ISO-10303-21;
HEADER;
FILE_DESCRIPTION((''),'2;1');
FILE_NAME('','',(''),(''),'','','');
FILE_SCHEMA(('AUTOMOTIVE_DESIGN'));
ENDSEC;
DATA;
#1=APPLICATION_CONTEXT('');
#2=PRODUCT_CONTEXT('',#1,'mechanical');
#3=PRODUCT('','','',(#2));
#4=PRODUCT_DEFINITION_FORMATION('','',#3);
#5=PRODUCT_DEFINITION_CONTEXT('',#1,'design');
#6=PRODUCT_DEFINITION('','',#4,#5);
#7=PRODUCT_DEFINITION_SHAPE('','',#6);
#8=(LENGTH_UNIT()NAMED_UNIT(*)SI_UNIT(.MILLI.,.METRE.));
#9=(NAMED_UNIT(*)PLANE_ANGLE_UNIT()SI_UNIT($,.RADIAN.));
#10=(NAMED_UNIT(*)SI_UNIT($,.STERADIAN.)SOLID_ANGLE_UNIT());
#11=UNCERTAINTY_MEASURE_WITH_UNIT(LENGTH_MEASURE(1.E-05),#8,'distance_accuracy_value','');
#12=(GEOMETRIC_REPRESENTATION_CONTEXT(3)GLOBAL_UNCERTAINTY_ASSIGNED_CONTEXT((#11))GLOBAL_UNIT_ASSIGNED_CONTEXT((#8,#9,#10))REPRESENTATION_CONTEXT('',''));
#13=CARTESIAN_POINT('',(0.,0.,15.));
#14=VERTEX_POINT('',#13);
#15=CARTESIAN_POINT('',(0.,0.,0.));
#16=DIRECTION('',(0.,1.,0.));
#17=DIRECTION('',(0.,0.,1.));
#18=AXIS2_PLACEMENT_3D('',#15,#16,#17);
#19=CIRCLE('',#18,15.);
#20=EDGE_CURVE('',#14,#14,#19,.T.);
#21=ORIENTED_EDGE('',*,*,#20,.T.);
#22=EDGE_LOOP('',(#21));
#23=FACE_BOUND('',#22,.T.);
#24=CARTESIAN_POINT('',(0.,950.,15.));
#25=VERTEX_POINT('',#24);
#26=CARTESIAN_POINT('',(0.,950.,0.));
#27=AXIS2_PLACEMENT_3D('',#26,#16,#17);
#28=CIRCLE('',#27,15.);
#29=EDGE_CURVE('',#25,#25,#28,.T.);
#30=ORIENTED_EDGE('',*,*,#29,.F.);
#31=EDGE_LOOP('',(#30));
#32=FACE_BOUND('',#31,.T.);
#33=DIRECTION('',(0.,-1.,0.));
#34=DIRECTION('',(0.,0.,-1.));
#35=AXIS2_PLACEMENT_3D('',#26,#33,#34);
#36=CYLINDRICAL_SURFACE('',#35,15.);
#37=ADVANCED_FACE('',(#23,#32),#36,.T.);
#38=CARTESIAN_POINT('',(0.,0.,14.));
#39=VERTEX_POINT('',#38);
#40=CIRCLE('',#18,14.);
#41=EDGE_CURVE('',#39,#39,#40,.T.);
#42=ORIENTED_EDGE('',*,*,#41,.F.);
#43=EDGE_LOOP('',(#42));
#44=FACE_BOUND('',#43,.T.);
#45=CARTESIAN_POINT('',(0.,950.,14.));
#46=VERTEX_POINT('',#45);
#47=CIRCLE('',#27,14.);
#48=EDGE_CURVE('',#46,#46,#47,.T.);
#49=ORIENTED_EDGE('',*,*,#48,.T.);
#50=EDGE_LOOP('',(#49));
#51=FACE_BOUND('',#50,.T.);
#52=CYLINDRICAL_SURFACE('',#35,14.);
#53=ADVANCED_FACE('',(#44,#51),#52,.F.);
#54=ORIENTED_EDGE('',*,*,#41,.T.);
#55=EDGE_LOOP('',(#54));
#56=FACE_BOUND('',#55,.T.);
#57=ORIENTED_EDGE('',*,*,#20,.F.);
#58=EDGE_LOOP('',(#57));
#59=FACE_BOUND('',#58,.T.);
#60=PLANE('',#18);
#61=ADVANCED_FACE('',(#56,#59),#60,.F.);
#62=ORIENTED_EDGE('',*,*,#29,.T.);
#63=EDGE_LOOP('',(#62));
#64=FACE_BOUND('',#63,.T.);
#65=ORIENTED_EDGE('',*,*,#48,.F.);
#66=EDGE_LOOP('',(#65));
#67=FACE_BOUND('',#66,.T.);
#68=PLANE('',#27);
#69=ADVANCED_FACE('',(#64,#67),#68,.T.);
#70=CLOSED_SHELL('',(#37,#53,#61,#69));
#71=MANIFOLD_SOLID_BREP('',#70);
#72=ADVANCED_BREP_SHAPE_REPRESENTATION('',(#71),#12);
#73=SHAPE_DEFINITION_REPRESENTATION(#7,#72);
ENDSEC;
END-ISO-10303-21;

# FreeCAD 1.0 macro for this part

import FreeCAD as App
import Part
import Sketcher
from FreeCAD import Vector
Q = App.Units.Quantity

doc = App.newDocument("Part")
body = doc.addObject("PartDesign::Body", "Body")

# Sketch on XZ plane
sketch1 = doc.addObject("Sketcher::SketchObject", "Sketch")
body.addObject(sketch1)
sketch1.AttachmentSupport = (doc.XZ_Plane, [""])
sketch1.MapMode = "FlatFace"
sketch1.addGeometry(Part.Circle(Vector(0, 0, 0), Vector(0, 0, 1), 15), False)
sketch1.addGeometry(Part.Circle(Vector(0, 0, 0), Vector(0, 0, 1), 14), False)
sketch1.addConstraint(Sketcher.Constraint("Coincident", 0, 3, -1, 1))
sketch1.addConstraint(Sketcher.Constraint("Coincident", 1, 3, -1, 1))
sketch1.addConstraint(Sketcher.Constraint("Diameter", 0, Q("30 mm")))
sketch1.addConstraint(Sketcher.Constraint("Diameter", 1, Q("28 mm")))
pad1 = doc.addObject("PartDesign::Pad", "Pad")
body.addObject(pad1)
pad1.Profile = sketch1
pad1.Length = 950
pad1.Reversed = True

doc.recompute()
